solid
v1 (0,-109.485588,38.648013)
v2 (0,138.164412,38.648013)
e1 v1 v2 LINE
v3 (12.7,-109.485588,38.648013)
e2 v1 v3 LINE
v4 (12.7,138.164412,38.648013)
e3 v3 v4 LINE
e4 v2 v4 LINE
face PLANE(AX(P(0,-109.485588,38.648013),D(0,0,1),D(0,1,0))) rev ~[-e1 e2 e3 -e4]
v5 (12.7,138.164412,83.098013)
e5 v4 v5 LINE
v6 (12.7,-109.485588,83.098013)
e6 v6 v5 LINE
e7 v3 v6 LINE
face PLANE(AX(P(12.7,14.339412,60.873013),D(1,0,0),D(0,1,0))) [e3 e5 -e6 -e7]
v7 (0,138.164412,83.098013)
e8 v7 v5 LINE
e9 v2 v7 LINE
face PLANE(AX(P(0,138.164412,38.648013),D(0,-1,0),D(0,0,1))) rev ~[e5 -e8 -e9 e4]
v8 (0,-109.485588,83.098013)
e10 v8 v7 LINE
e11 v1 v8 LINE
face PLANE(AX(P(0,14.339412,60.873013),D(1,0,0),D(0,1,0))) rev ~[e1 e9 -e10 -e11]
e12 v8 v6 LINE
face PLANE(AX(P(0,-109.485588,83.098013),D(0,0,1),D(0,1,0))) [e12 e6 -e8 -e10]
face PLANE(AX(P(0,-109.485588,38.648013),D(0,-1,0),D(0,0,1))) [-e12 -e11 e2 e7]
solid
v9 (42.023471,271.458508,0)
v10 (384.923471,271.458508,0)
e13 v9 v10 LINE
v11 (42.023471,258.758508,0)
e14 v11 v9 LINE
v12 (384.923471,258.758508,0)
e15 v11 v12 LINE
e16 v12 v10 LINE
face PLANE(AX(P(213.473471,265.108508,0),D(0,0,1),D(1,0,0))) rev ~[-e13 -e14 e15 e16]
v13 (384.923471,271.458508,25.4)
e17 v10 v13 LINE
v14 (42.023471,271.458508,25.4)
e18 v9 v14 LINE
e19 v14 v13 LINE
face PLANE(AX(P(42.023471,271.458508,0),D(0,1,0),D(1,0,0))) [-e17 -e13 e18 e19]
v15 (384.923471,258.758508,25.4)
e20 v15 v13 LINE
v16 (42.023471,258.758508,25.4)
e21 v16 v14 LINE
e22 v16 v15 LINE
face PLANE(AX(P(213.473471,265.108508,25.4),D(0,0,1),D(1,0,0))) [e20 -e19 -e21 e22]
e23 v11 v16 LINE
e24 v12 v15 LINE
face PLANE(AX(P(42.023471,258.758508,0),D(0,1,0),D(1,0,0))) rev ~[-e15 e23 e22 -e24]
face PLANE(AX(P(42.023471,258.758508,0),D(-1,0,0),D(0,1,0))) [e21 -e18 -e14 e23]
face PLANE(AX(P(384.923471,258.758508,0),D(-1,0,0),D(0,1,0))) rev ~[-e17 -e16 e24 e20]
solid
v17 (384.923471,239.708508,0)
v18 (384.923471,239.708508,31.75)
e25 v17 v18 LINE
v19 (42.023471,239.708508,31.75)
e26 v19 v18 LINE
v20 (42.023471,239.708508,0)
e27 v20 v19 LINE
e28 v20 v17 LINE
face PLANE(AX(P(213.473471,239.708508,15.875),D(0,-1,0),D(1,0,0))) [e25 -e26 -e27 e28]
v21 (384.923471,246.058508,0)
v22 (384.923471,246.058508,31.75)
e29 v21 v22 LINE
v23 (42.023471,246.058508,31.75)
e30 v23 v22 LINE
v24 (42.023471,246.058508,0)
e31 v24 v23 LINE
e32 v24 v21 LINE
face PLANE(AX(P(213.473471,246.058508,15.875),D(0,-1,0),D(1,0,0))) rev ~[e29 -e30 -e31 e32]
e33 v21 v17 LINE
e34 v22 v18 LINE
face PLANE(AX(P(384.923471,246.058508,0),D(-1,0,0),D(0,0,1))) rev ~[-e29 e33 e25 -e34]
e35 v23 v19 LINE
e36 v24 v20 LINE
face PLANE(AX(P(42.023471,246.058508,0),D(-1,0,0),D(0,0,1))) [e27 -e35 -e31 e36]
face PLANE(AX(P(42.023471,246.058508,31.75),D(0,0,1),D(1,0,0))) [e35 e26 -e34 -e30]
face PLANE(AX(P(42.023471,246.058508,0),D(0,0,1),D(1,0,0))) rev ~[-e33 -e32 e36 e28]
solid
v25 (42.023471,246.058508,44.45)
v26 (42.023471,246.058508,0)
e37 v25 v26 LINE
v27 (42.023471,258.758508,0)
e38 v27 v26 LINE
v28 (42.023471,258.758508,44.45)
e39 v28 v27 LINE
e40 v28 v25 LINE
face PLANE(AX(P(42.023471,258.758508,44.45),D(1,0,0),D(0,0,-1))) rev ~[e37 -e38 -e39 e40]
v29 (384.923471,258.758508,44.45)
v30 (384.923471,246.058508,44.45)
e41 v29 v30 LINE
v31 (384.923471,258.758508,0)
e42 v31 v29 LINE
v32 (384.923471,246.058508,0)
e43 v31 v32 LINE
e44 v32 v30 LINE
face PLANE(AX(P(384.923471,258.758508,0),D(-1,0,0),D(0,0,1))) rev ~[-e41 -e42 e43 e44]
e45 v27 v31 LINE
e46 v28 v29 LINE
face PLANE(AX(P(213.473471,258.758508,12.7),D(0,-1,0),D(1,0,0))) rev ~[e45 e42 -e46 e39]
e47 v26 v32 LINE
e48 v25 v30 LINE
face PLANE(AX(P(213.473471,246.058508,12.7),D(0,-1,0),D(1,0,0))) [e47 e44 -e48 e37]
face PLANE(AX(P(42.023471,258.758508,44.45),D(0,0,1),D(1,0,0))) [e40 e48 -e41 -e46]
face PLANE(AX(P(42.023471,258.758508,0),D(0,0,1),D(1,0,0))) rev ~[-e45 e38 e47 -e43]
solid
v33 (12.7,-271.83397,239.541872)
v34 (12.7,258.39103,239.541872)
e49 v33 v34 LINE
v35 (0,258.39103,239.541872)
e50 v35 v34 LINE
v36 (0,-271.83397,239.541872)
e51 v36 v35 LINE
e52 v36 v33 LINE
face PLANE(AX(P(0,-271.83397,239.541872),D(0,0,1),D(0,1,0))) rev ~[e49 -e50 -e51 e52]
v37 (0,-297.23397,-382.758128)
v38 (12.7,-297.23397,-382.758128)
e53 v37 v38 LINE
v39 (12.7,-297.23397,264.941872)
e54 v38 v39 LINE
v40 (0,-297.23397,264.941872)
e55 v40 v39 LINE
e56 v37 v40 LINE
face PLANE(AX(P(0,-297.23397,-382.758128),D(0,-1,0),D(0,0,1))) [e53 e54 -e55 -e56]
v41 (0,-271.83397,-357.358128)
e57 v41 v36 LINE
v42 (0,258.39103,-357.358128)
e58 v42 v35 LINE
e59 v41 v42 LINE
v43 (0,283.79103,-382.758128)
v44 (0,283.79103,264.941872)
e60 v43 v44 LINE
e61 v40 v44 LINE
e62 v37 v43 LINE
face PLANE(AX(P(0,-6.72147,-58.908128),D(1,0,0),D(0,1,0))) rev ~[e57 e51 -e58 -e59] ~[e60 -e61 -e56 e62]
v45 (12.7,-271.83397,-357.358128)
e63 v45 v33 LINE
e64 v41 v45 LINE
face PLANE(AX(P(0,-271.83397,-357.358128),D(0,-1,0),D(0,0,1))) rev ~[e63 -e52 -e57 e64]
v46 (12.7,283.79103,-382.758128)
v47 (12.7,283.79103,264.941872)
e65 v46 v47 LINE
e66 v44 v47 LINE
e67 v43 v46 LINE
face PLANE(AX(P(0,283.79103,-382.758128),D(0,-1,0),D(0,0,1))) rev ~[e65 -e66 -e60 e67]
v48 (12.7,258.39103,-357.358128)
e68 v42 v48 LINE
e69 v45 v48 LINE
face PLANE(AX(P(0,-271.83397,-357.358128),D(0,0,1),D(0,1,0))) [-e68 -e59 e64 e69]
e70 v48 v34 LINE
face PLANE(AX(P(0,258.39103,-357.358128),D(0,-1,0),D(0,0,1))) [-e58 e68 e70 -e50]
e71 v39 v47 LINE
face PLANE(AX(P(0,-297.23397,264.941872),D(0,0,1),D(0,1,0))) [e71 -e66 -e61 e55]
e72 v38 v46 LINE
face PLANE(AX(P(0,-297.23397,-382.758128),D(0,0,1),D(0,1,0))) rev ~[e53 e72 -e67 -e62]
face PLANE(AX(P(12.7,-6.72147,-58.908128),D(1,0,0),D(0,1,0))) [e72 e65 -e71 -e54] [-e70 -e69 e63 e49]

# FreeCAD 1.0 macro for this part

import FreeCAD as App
import Part
import Sketcher

V = App.Vector
Q = App.Units.Quantity

doc = App.newDocument("Part")
body = doc.addObject("PartDesign::Body", "Body")

sketch1 = body.newObject("Sketcher::SketchObject", "Sketch")
sketch1.AttachmentSupport = (doc.getObject("YZ_Plane"), [""])
sketch1.MapMode = "FlatFace"
sketch1.addGeometry(Part.LineSegment(V(-297.23397, 264.941872, 0), V(-297.23397, -382.758128, 0)), False)
sketch1.addGeometry(Part.LineSegment(V(-297.23397, -382.758128, 0), V(283.79103, -382.758128, 0)), False)
sketch1.addGeometry(Part.LineSegment(V(283.79103, -382.758128, 0), V(283.79103, 264.941872, 0)), False)
sketch1.addGeometry(Part.LineSegment(V(283.79103, 264.941872, 0), V(-297.23397, 264.941872, 0)), False)
sketch1.addGeometry(Part.LineSegment(V(258.39103, -357.358128, 0), V(-271.83397, -357.358128, 0)), False)
sketch1.addGeometry(Part.LineSegment(V(-271.83397, -357.358128, 0), V(-271.83397, 239.541872, 0)), False)
sketch1.addGeometry(Part.LineSegment(V(-271.83397, 239.541872, 0), V(258.39103, 239.541872, 0)), False)
sketch1.addGeometry(Part.LineSegment(V(258.39103, 239.541872, 0), V(258.39103, -357.358128, 0)), False)
sketch1.addConstraint(Sketcher.Constraint("Coincident", 0, 2, 1, 1))
sketch1.addConstraint(Sketcher.Constraint("Coincident", 1, 2, 2, 1))
sketch1.addConstraint(Sketcher.Constraint("Coincident", 2, 2, 3, 1))
sketch1.addConstraint(Sketcher.Constraint("Coincident", 3, 2, 0, 1))
sketch1.addConstraint(Sketcher.Constraint("Coincident", 4, 2, 5, 1))
sketch1.addConstraint(Sketcher.Constraint("Coincident", 5, 2, 6, 1))
sketch1.addConstraint(Sketcher.Constraint("Coincident", 6, 2, 7, 1))
sketch1.addConstraint(Sketcher.Constraint("Coincident", 7, 2, 4, 1))
sketch1.addConstraint(Sketcher.Constraint("Vertical", 0))
sketch1.addConstraint(Sketcher.Constraint("Horizontal", 1))
sketch1.addConstraint(Sketcher.Constraint("Vertical", 2))
sketch1.addConstraint(Sketcher.Constraint("Horizontal", 3))
sketch1.addConstraint(Sketcher.Constraint("Horizontal", 4))
sketch1.addConstraint(Sketcher.Constraint("Vertical", 5))
sketch1.addConstraint(Sketcher.Constraint("Horizontal", 6))
sketch1.addConstraint(Sketcher.Constraint("Vertical", 7))
sketch1.addConstraint(Sketcher.Constraint("DistanceY", 0, 2, 0, 1, Q("25.5 in")))
sketch1.addConstraint(Sketcher.Constraint("DistanceY", 5, 1, 5, 2, Q("23.5 in")))
sketch1.addConstraint(Sketcher.Constraint("DistanceX", 0, 2, 4, 2, Q("1 in")))
sketch1.addConstraint(Sketcher.Constraint("DistanceY", 0, 2, 4, 2, Q("1 in")))
sketch1.addConstraint(Sketcher.Constraint("DistanceX", 6, 2, 2, 2, Q("1 in")))
sketch1.addConstraint(Sketcher.Constraint("DistanceX", 1, 1, 1, 2, Q("22.875 in")))
sketch1.addConstraint(Sketcher.Constraint("DistanceX", 0, 2, -1, 1, 297.23397))
sketch1.addConstraint(Sketcher.Constraint("DistanceY", 0, 2, -1, 1, 382.758128))
pad1 = body.newObject("PartDesign::Pad", "Pad")
pad1.Profile = sketch1
pad1.Length = Q("0.5 in")
body2 = doc.addObject("PartDesign::Body", "Body001")

sketch2 = body2.newObject("Sketcher::SketchObject", "Sketch001")
sketch2.AttachmentSupport = (doc.getObject("XY_Plane001"), [""])
sketch2.MapMode = "FlatFace"
sketch2.addGeometry(Part.LineSegment(V(42.023471, 271.458508, 0), V(42.023471, 258.758508, 0)), False)
sketch2.addGeometry(Part.LineSegment(V(42.023471, 258.758508, 0), V(384.923471, 258.758508, 0)), False)
sketch2.addGeometry(Part.LineSegment(V(384.923471, 258.758508, 0), V(384.923471, 271.458508, 0)), False)
sketch2.addGeometry(Part.LineSegment(V(384.923471, 271.458508, 0), V(42.023471, 271.458508, 0)), False)
sketch2.addConstraint(Sketcher.Constraint("Coincident", 0, 2, 1, 1))
sketch2.addConstraint(Sketcher.Constraint("Coincident", 1, 2, 2, 1))
sketch2.addConstraint(Sketcher.Constraint("Coincident", 2, 2, 3, 1))
sketch2.addConstraint(Sketcher.Constraint("Coincident", 3, 2, 0, 1))
sketch2.addConstraint(Sketcher.Constraint("Vertical", 0))
sketch2.addConstraint(Sketcher.Constraint("Horizontal", 1))
sketch2.addConstraint(Sketcher.Constraint("Vertical", 2))
sketch2.addConstraint(Sketcher.Constraint("Horizontal", 3))
sketch2.addConstraint(Sketcher.Constraint("DistanceX", 1, 1, 1, 2, Q("13.5 in")))
sketch2.addConstraint(Sketcher.Constraint("DistanceY", 0, 2, 0, 1, Q("0.5 in")))
sketch2.addConstraint(Sketcher.Constraint("DistanceX", -1, 1, 0, 2, 42.023471))
sketch2.addConstraint(Sketcher.Constraint("DistanceY", -1, 1, 0, 2, 258.758508))
pad2 = body2.newObject("PartDesign::Pad", "Pad001")
pad2.Profile = sketch2
pad2.Length = Q("1 in")
body3 = doc.addObject("PartDesign::Body", "Body002")

sketch3 = body3.newObject("Sketcher::SketchObject", "Sketch002")
sketch3.AttachmentSupport = (doc.getObject("XZ_Plane002"), [""])
sketch3.MapMode = "FlatFace"
sketch3.AttachmentOffset = App.Placement(V(0, 0, -258.758508), App.Rotation())
sketch3.addGeometry(Part.LineSegment(V(42.023471, 0, 0), V(384.923471, 0, 0)), False)
sketch3.addGeometry(Part.LineSegment(V(384.923471, 0, 0), V(384.923471, 44.45, 0)), False)
sketch3.addGeometry(Part.LineSegment(V(384.923471, 44.45, 0), V(42.023471, 44.45, 0)), False)
sketch3.addGeometry(Part.LineSegment(V(42.023471, 44.45, 0), V(42.023471, 0, 0)), False)
sketch3.addConstraint(Sketcher.Constraint("Coincident", 0, 2, 1, 1))
sketch3.addConstraint(Sketcher.Constraint("Coincident", 1, 2, 2, 1))
sketch3.addConstraint(Sketcher.Constraint("Coincident", 2, 2, 3, 1))
sketch3.addConstraint(Sketcher.Constraint("Coincident", 3, 2, 0, 1))
sketch3.addConstraint(Sketcher.Constraint("Horizontal", 0))
sketch3.addConstraint(Sketcher.Constraint("Vertical", 1))
sketch3.addConstraint(Sketcher.Constraint("Horizontal", 2))
sketch3.addConstraint(Sketcher.Constraint("Vertical", 3))
sketch3.addConstraint(Sketcher.Constraint("PointOnObject", 0, 2, -1))
sketch3.addConstraint(Sketcher.Constraint("DistanceX", 0, 1, 0, 2, Q("13.5 in")))
sketch3.addConstraint(Sketcher.Constraint("DistanceY", 1, 1, 1, 2, Q("1.75 in")))
sketch3.addConstraint(Sketcher.Constraint("DistanceX", -1, 1, 0, 2, 384.923471))
pad3 = body3.newObject("PartDesign::Pad", "Pad002")
pad3.Profile = sketch3
pad3.Length = Q("0.5 in")
body4 = doc.addObject("PartDesign::Body", "Body003")

sketch4 = body4.newObject("Sketcher::SketchObject", "Sketch003")
sketch4.AttachmentSupport = (doc.getObject("XZ_Plane003"), [""])
sketch4.MapMode = "FlatFace"
sketch4.AttachmentOffset = App.Placement(V(0, 0, -246.058508), App.Rotation())
sketch4.addGeometry(Part.LineSegment(V(42.023471, 31.75, 0), V(42.023471, 0, 0)), False)
sketch4.addGeometry(Part.LineSegment(V(42.023471, 0, 0), V(384.923471, 0, 0)), False)
sketch4.addGeometry(Part.LineSegment(V(384.923471, 0, 0), V(384.923471, 31.75, 0)), False)
sketch4.addGeometry(Part.LineSegment(V(384.923471, 31.75, 0), V(42.023471, 31.75, 0)), False)
sketch4.addConstraint(Sketcher.Constraint("Coincident", 0, 2, 1, 1))
sketch4.addConstraint(Sketcher.Constraint("Coincident", 1, 2, 2, 1))
sketch4.addConstraint(Sketcher.Constraint("Coincident", 2, 2, 3, 1))
sketch4.addConstraint(Sketcher.Constraint("Coincident", 3, 2, 0, 1))
sketch4.addConstraint(Sketcher.Constraint("Vertical", 0))
sketch4.addConstraint(Sketcher.Constraint("Horizontal", 1))
sketch4.addConstraint(Sketcher.Constraint("Vertical", 2))
sketch4.addConstraint(Sketcher.Constraint("Horizontal", 3))
sketch4.addConstraint(Sketcher.Constraint("PointOnObject", 0, 2, -1))
sketch4.addConstraint(Sketcher.Constraint("DistanceX", 1, 1, 1, 2, Q("13.5 in")))
sketch4.addConstraint(Sketcher.Constraint("DistanceY", 0, 2, 0, 1, Q("1.25 in")))
sketch4.addConstraint(Sketcher.Constraint("DistanceX", -1, 1, 0, 2, 42.023471))
pad4 = body4.newObject("PartDesign::Pad", "Pad003")
pad4.Profile = sketch4
pad4.Length = Q("0.25 in")
body5 = doc.addObject("PartDesign::Body", "Body004")

sketch5 = body5.newObject("Sketcher::SketchObject", "Sketch004")
sketch5.AttachmentSupport = (doc.getObject("YZ_Plane004"), [""])
sketch5.MapMode = "FlatFace"
sketch5.addGeometry(Part.LineSegment(V(-109.485588, 83.098013, 0), V(-109.485588, 38.648013, 0)), False)
sketch5.addGeometry(Part.LineSegment(V(-109.485588, 38.648013, 0), V(138.164412, 38.648013, 0)), False)
sketch5.addGeometry(Part.LineSegment(V(138.164412, 38.648013, 0), V(138.164412, 83.098013, 0)), False)
sketch5.addGeometry(Part.LineSegment(V(138.164412, 83.098013, 0), V(-109.485588, 83.098013, 0)), False)
sketch5.addConstraint(Sketcher.Constraint("Coincident", 0, 2, 1, 1))
sketch5.addConstraint(Sketcher.Constraint("Coincident", 1, 2, 2, 1))
sketch5.addConstraint(Sketcher.Constraint("Coincident", 2, 2, 3, 1))
sketch5.addConstraint(Sketcher.Constraint("Coincident", 3, 2, 0, 1))
sketch5.addConstraint(Sketcher.Constraint("Vertical", 0))
sketch5.addConstraint(Sketcher.Constraint("Horizontal", 1))
sketch5.addConstraint(Sketcher.Constraint("Vertical", 2))
sketch5.addConstraint(Sketcher.Constraint("Horizontal", 3))
sketch5.addConstraint(Sketcher.Constraint("DistanceX", 1, 1, 1, 2, Q("9.75 in")))
sketch5.addConstraint(Sketcher.Constraint("DistanceY", 0, 2, 0, 1, Q("1.75 in")))
sketch5.addConstraint(Sketcher.Constraint("DistanceX", 0, 2, -1, 1, 109.485588))
sketch5.addConstraint(Sketcher.Constraint("DistanceY", -1, 1, 0, 2, 38.648013))
pad5 = body5.newObject("PartDesign::Pad", "Pad004")
pad5.Profile = sketch5
pad5.Length = Q("0.5 in")

doc.recompute()
